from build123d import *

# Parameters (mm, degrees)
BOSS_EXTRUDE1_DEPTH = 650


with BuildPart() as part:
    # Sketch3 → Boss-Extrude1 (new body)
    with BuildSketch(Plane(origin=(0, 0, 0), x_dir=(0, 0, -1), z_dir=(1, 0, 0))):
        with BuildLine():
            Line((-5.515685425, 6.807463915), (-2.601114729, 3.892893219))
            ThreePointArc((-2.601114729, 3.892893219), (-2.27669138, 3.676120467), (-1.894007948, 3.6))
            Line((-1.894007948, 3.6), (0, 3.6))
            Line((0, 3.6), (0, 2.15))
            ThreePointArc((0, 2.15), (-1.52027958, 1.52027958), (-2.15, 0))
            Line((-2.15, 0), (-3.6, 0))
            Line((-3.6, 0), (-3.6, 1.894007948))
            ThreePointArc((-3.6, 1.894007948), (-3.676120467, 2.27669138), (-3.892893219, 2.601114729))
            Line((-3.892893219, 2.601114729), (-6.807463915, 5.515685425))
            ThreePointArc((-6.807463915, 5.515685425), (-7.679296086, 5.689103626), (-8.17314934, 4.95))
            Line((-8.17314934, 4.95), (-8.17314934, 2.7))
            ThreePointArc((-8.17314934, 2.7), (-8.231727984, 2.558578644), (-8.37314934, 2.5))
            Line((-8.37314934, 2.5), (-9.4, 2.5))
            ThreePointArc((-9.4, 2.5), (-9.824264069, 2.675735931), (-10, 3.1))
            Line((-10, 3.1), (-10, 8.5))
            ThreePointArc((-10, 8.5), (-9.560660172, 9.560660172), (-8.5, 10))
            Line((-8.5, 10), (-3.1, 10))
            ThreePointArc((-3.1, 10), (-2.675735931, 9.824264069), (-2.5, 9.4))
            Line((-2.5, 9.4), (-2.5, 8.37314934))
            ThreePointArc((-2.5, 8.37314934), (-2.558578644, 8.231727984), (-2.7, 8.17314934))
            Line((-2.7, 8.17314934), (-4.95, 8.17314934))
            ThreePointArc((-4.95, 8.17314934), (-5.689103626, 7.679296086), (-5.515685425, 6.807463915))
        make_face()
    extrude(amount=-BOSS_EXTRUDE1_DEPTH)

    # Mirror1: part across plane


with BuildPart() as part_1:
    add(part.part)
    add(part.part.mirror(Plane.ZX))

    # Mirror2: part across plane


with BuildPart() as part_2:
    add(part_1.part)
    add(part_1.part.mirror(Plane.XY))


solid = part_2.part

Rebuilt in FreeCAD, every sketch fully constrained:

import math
import FreeCAD as App
import Part
import Sketcher

V = App.Vector

doc = App.newDocument("Part")
body = doc.addObject("PartDesign::Body", "Body")

# Sketch on YZ plane
sketch1 = body.newObject("Sketcher::SketchObject", "Sketch")
sketch1.AttachmentSupport = (doc.getObject("YZ_Plane"), [""])
sketch1.MapMode = "FlatFace"
sketch1.addGeometry(Part.LineSegment(V(3.89, 2.6, 0), V(6.81, 5.52, 0)), False)
sketch1.addGeometry(Part.ArcOfCircle(Part.Circle(V(7.37, 4.95, 0), V(0, 0, 1), 0.8), math.radians(0), math.radians(135)), False)
sketch1.addGeometry(Part.LineSegment(V(8.17, 4.95, 0), V(8.17, 2.7, 0)), False)
sketch1.addGeometry(Part.ArcOfCircle(Part.Circle(V(8.37, 2.7, 0), V(0, 0, 1), 0.2), math.radians(-180), math.radians(-90)), False)
sketch1.addGeometry(Part.LineSegment(V(8.37, 2.5, 0), V(9.4, 2.5, 0)), False)
sketch1.addGeometry(Part.ArcOfCircle(Part.Circle(V(9.4, 3.1, 0), V(0, 0, 1), 0.6), math.radians(-90), math.radians(0)), False)
sketch1.addGeometry(Part.LineSegment(V(10, 3.1, 0), V(10, 8.5, 0)), False)
sketch1.addGeometry(Part.ArcOfCircle(Part.Circle(V(8.5, 8.5, 0), V(0, 0, 1), 1.5), math.radians(0), math.radians(90)), False)
sketch1.addGeometry(Part.LineSegment(V(8.5, 10, 0), V(3.1, 10, 0)), False)
sketch1.addGeometry(Part.ArcOfCircle(Part.Circle(V(3.1, 9.4, 0), V(0, 0, 1), 0.6), math.radians(90), math.radians(180)), False)
sketch1.addGeometry(Part.LineSegment(V(2.5, 9.4, 0), V(2.5, 8.37, 0)), False)
sketch1.addGeometry(Part.ArcOfCircle(Part.Circle(V(2.7, 8.37, 0), V(0, 0, 1), 0.2), math.radians(-180), math.radians(-90)), False)
sketch1.addGeometry(Part.LineSegment(V(2.7, 8.17, 0), V(4.95, 8.17, 0)), False)
sketch1.addGeometry(Part.ArcOfCircle(Part.Circle(V(4.95, 7.37, 0), V(0, 0, 1), 0.8), math.radians(-45), math.radians(90)), False)
sketch1.addGeometry(Part.LineSegment(V(5.52, 6.81, 0), V(2.6, 3.89, 0)), False)
sketch1.addGeometry(Part.ArcOfCircle(Part.Circle(V(1.89, 4.6, 0), V(0, 0, 1), 1), math.radians(-90), math.radians(-45)), False)
sketch1.addGeometry(Part.LineSegment(V(1.89, 3.6, 0), V(0, 3.6, 0)), False)
sketch1.addGeometry(Part.LineSegment(V(0, 3.6, 0), V(0, 2.15, 0)), False)
sketch1.addGeometry(Part.ArcOfCircle(Part.Circle(V(0, 0, 0), V(0, 0, 1), 2.15), math.radians(0), math.radians(90)), False)
sketch1.addGeometry(Part.LineSegment(V(2.15, 0, 0), V(3.6, 0, 0)), False)
sketch1.addGeometry(Part.LineSegment(V(3.6, 0, 0), V(3.6, 1.89, 0)), False)
sketch1.addGeometry(Part.ArcOfCircle(Part.Circle(V(4.6, 1.89, 0), V(0, 0, 1), 1), math.radians(135), math.radians(180)), False)
sketch1.addConstraint(Sketcher.Constraint("Tangent", 0, 2, 1, 2))
sketch1.addConstraint(Sketcher.Constraint("Tangent", 1, 1, 2, 1))
sketch1.addConstraint(Sketcher.Constraint("Tangent", 2, 2, 3, 1))
sketch1.addConstraint(Sketcher.Constraint("Tangent", 3, 2, 4, 1))
sketch1.addConstraint(Sketcher.Constraint("Tangent", 4, 2, 5, 1))
sketch1.addConstraint(Sketcher.Constraint("Tangent", 5, 2, 6, 1))
sketch1.addConstraint(Sketcher.Constraint("Tangent", 6, 2, 7, 1))
sketch1.addConstraint(Sketcher.Constraint("Tangent", 7, 2, 8, 1))
sketch1.addConstraint(Sketcher.Constraint("Tangent", 8, 2, 9, 1))
sketch1.addConstraint(Sketcher.Constraint("Tangent", 9, 2, 10, 1))
sketch1.addConstraint(Sketcher.Constraint("Tangent", 10, 2, 11, 1))
sketch1.addConstraint(Sketcher.Constraint("Tangent", 11, 2, 12, 1))
sketch1.addConstraint(Sketcher.Constraint("Tangent", 12, 2, 13, 2))
sketch1.addConstraint(Sketcher.Constraint("Tangent", 13, 1, 14, 1))
sketch1.addConstraint(Sketcher.Constraint("Tangent", 14, 2, 15, 2))
sketch1.addConstraint(Sketcher.Constraint("Tangent", 15, 1, 16, 1))
sketch1.addConstraint(Sketcher.Constraint("Coincident", 16, 2, 17, 1))
sketch1.addConstraint(Sketcher.Constraint("Coincident", 17, 2, 18, 2))
sketch1.addConstraint(Sketcher.Constraint("Coincident", 18, 1, 19, 1))
sketch1.addConstraint(Sketcher.Constraint("Coincident", 19, 2, 20, 1))
sketch1.addConstraint(Sketcher.Constraint("Tangent", 20, 2, 21, 2))
sketch1.addConstraint(Sketcher.Constraint("Tangent", 21, 1, 0, 1))
sketch1.addConstraint(Sketcher.Constraint("Vertical", 2))
sketch1.addConstraint(Sketcher.Constraint("Horizontal", 4))
sketch1.addConstraint(Sketcher.Constraint("Vertical", 6))
sketch1.addConstraint(Sketcher.Constraint("Horizontal", 8))
sketch1.addConstraint(Sketcher.Constraint("Vertical", 10))
sketch1.addConstraint(Sketcher.Constraint("Horizontal", 12))
sketch1.addConstraint(Sketcher.Constraint("Horizontal", 16))
sketch1.addConstraint(Sketcher.Constraint("Vertical", 17))
sketch1.addConstraint(Sketcher.Constraint("Horizontal", 19))
sketch1.addConstraint(Sketcher.Constraint("Vertical", 20))
sketch1.addConstraint(Sketcher.Constraint("Coincident", 18, 3, -1, 1))
sketch1.addConstraint(Sketcher.Constraint("Equal", 5, 9))
sketch1.addConstraint(Sketcher.Constraint("Equal", 3, 11))
sketch1.addConstraint(Sketcher.Constraint("Equal", 1, 13))
sketch1.addConstraint(Sketcher.Constraint("Equal", 15, 21))
sketch1.addConstraint(Sketcher.Constraint("PointOnObject", 16, 2, -2))
sketch1.addConstraint(Sketcher.Constraint("PointOnObject", 18, 1, -1))
sketch1.addConstraint(Sketcher.Constraint("Parallel", 0, 14))
sketch1.addConstraint(Sketcher.Constraint("Equal", 12, 2))
sketch1.addConstraint(Sketcher.Constraint("Equal", 8, 6))
sketch1.addConstraint(Sketcher.Constraint("Equal", 4, 10))
sketch1.addConstraint(Sketcher.Constraint("Equal", 19, 17))
sketch1.addConstraint(Sketcher.Constraint("Equal", 16, 20))
sketch1.addConstraint(Sketcher.Constraint("Equal", 0, 14))
sketch1.addConstraint(Sketcher.Constraint("Radius", 15, 1.0))
sketch1.addConstraint(Sketcher.Constraint("Radius", 1, 0.8))
sketch1.addConstraint(Sketcher.Constraint("Radius", 3, 0.2))
sketch1.addConstraint(Sketcher.Constraint("Radius", 5, 0.6))
sketch1.addConstraint(Sketcher.Constraint("Radius", 7, 1.5))
sketch1.addConstraint(Sketcher.Constraint("Radius", 18, 2.15))
sketch1.addConstraint(Sketcher.Constraint("DistanceX", 8, 2, 8, 1, 5.4))
sketch1.addConstraint(Sketcher.Constraint("DistanceX", -1, 1, 5, 2, 10.0))
sketch1.addConstraint(Sketcher.Constraint("DistanceX", 12, 1, 12, 2, 2.25))
sketch1.addConstraint(Sketcher.Constraint("DistanceX", 19, 1, 19, 2, 1.45))
sketch1.addConstraint(Sketcher.Constraint("DistanceX", 4, 1, 4, 2, 1.026851))
pad1 = body.newObject("PartDesign::Pad", "Pad")
pad1.Profile = sketch1
pad1.Length = 650
pad1.Reversed = True
body2 = doc.addObject("PartDesign::Body", "Body001")
doc.recompute()

body2.BaseFeature = body
doc.recompute()

mirroring = doc.addObject("Part::Mirroring", "Mirroring")
mirroring.Source = body
mirroring.Base = V(0, 0, 0)
mirroring.Normal = V(0, 1, 0)
body3 = doc.addObject("PartDesign::Body", "Body002")
body3.BaseFeature = mirroring
boolean = body2.newObject("PartDesign::Boolean", "Boolean")
boolean.Type = "Fuse"
boolean.addObjects([body3])
doc.recompute()
body4 = doc.addObject("PartDesign::Body", "Body003")
doc.recompute()

body4.BaseFeature = body2
doc.recompute()

mirroring2 = doc.addObject("Part::Mirroring", "Mirroring001")
mirroring2.Source = body2
mirroring2.Base = V(0, 0, 0)
mirroring2.Normal = V(0, 0, 1)
body5 = doc.addObject("PartDesign::Body", "Body004")
body5.BaseFeature = mirroring2
boolean2 = body4.newObject("PartDesign::Boolean", "Boolean001")
boolean2.Type = "Fuse"
boolean2.addObjects([body5])
doc.recompute()
mirroring.Visibility = False
mirroring2.Visibility = False

doc.recompute()
